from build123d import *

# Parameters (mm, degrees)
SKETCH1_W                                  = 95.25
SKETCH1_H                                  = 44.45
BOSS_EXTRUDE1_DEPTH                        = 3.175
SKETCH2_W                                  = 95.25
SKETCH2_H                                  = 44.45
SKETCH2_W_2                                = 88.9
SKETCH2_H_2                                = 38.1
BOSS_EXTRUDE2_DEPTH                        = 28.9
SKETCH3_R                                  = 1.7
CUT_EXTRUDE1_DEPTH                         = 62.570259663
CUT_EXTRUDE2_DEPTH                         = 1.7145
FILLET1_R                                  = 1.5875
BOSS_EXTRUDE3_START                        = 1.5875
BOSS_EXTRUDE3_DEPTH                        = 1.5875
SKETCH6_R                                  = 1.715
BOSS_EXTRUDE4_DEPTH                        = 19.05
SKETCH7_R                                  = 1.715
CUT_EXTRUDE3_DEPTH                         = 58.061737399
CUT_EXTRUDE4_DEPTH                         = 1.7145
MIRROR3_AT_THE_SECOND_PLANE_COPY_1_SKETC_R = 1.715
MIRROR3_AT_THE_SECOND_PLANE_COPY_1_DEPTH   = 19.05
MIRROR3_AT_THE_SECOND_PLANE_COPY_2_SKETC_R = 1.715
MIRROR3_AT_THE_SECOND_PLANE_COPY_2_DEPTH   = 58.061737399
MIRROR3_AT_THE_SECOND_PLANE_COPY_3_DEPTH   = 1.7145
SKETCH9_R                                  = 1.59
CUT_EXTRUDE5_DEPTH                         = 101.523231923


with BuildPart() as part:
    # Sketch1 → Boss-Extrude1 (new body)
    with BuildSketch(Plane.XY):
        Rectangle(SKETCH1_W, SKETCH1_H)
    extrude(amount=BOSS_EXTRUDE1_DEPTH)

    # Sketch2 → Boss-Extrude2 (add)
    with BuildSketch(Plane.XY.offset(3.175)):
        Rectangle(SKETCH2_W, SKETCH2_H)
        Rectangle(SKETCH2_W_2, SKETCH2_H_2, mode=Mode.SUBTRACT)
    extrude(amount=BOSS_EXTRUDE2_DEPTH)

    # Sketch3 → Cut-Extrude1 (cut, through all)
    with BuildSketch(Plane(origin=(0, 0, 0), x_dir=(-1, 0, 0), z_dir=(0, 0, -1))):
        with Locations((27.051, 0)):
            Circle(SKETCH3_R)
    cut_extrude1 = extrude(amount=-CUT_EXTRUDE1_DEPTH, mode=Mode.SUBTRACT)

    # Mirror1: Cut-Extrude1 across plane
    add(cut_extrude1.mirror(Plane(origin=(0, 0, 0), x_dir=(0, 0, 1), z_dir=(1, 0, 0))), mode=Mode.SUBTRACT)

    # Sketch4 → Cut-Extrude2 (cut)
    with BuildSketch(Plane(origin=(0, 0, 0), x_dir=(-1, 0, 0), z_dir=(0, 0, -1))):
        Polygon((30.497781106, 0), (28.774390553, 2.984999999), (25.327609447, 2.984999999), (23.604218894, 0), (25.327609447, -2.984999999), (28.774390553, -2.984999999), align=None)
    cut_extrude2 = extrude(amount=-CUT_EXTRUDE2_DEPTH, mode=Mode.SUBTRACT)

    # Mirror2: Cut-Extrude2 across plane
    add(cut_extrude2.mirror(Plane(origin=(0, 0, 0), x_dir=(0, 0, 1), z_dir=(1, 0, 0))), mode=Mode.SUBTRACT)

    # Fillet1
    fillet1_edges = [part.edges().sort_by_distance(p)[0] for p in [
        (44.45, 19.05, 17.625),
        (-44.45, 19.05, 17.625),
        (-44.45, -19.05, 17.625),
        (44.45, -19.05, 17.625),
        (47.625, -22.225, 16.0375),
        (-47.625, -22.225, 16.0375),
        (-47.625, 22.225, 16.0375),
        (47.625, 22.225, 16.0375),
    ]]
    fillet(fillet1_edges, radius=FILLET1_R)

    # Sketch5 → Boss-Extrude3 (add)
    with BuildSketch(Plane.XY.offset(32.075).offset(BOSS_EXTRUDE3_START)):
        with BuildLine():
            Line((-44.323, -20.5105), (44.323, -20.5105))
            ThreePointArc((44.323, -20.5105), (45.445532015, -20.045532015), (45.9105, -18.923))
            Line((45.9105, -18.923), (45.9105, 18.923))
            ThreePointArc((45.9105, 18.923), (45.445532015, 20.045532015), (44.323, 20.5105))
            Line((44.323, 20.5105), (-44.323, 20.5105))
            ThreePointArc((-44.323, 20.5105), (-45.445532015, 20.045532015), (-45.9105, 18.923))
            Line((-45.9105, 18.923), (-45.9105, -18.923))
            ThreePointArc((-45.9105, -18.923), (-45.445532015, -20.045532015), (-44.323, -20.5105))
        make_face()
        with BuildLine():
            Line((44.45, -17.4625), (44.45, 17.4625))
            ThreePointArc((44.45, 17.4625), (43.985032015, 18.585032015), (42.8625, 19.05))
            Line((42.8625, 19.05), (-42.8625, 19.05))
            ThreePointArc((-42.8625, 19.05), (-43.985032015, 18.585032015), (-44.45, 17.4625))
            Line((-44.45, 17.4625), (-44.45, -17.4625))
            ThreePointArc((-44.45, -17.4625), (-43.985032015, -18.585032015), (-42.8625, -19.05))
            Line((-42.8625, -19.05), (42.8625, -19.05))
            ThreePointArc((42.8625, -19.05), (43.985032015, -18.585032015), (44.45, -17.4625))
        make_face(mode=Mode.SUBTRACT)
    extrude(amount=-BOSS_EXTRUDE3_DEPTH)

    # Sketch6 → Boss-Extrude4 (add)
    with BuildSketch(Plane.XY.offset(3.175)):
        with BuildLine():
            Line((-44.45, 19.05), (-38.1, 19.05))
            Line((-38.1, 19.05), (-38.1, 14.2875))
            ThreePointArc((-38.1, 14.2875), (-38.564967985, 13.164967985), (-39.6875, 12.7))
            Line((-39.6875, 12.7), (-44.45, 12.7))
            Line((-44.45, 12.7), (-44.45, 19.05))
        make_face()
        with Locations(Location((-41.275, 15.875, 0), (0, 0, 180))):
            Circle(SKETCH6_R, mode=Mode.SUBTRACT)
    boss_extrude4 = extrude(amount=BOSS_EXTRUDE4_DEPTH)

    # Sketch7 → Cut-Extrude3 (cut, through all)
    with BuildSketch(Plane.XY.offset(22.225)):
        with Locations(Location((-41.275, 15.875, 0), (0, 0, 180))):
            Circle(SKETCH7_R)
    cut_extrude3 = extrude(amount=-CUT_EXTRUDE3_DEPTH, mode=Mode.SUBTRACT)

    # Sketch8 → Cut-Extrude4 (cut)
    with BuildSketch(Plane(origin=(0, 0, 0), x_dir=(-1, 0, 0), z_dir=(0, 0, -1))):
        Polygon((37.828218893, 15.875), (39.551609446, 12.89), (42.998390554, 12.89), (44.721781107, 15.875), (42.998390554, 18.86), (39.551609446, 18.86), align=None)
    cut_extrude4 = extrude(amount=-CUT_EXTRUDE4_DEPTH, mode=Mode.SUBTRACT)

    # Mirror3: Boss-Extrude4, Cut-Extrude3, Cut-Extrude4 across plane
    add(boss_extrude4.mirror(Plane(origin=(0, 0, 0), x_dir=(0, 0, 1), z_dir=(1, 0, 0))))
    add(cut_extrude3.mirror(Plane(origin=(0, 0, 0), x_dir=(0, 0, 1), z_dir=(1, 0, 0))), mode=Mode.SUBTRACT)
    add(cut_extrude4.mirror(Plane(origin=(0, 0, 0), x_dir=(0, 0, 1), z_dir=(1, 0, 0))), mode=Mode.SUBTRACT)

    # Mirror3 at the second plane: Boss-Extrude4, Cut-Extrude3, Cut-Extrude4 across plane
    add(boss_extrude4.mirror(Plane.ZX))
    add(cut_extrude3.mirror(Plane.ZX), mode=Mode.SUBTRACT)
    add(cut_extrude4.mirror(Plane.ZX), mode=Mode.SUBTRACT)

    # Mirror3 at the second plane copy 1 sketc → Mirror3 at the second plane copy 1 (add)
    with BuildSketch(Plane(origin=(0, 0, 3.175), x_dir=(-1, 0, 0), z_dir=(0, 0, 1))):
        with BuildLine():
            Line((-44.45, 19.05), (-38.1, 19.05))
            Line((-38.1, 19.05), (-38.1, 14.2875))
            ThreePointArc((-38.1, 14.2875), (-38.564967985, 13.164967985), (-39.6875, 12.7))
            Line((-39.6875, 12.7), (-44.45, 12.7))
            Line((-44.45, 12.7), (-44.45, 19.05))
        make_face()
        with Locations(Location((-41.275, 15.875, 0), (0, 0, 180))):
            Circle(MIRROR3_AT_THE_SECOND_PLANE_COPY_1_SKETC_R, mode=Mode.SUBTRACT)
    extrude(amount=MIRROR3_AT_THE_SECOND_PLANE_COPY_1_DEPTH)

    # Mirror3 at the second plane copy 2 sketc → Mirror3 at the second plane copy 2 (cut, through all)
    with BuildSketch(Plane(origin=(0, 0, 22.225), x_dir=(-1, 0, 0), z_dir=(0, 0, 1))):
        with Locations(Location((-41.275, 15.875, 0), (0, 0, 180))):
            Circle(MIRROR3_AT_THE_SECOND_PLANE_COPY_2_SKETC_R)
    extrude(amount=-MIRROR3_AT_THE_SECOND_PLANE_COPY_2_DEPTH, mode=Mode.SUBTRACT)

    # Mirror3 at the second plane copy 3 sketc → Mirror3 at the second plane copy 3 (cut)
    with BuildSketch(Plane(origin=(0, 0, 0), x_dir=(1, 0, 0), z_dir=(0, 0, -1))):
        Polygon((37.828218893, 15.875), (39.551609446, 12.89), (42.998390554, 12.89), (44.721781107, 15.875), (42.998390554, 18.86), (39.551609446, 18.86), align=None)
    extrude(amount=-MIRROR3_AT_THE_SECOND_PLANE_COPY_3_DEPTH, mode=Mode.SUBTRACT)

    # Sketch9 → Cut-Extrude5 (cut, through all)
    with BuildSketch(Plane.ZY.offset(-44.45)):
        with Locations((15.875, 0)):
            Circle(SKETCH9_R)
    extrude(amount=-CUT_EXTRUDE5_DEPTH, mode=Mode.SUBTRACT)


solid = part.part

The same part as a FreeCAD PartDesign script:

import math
import FreeCAD as App
import Part
import Sketcher

V = App.Vector
Q = App.Units.Quantity


def edges_at(feature, points):
    """Names of the edges that pass closest to the given points."""
    edges = feature.Shape.Edges
    near = lambda p: min(range(len(edges)), key=lambda i: edges[i].distToShape(Part.Vertex(*p))[0])
    return sorted({f"Edge{near(p) + 1}" for p in points})

doc = App.newDocument("Part")
body = doc.addObject("PartDesign::Body", "Body")

# Sketch on XY plane
sketch1 = body.newObject("Sketcher::SketchObject", "Sketch")
sketch1.AttachmentSupport = (doc.getObject("XY_Plane"), [""])
sketch1.MapMode = "FlatFace"
sketch1.addGeometry([
    Part.LineSegment(V(-48, 22, 0), V(-48, -22, 0)),
    Part.LineSegment(V(-48, -22, 0), V(48, -22, 0)),
    Part.LineSegment(V(48, -22, 0), V(48, 22, 0)),
    Part.LineSegment(V(48, 22, 0), V(-48, 22, 0)),
], False)
sketch1.addConstraint([
    Sketcher.Constraint("Coincident", 0, 2, 1, 1),
    Sketcher.Constraint("Coincident", 1, 2, 2, 1),
    Sketcher.Constraint("Coincident", 2, 2, 3, 1),
    Sketcher.Constraint("Coincident", 3, 2, 0, 1),
    Sketcher.Constraint("Vertical", 0),
    Sketcher.Constraint("Horizontal", 1),
    Sketcher.Constraint("Vertical", 2),
    Sketcher.Constraint("Horizontal", 3),
    Sketcher.Constraint("Symmetric", 0, 2, 2, 2, -1, 1),
    Sketcher.Constraint("DistanceX", 1, 1, 1, 2, Q("3.75 in")),
    Sketcher.Constraint("DistanceY", 0, 2, 0, 1, Q("1.75 in")),
])
pad1 = body.newObject("PartDesign::Pad", "Pad")
pad1.Profile = sketch1
pad1.Length = Q("0.125 in")

# Sketch on XY plane
sketch2 = body.newObject("Sketcher::SketchObject", "Sketch001")
sketch2.AttachmentSupport = (doc.getObject("XY_Plane"), [""])
sketch2.MapMode = "FlatFace"
sketch2.AttachmentOffset = App.Placement(V(0, 0, 0.125 * 25.4), App.Rotation())
sketch2.addGeometry([
    Part.LineSegment(V(-48, 22, 0), V(-48, -22, 0)),  # 0
    Part.LineSegment(V(-48, -22, 0), V(48, -22, 0)),  # 1
    Part.LineSegment(V(48, -22, 0), V(48, 22, 0)),  # 2
    Part.LineSegment(V(48, 22, 0), V(-48, 22, 0)),  # 3
    Part.LineSegment(V(44, -19, 0), V(-44, -19, 0)),  # 4
    Part.LineSegment(V(-44, -19, 0), V(-44, 19, 0)),  # 5
    Part.LineSegment(V(-44, 19, 0), V(44, 19, 0)),  # 6
    Part.LineSegment(V(44, 19, 0), V(44, -19, 0)),  # 7
], False)
sketch2.addConstraint([
    Sketcher.Constraint("Coincident", 0, 2, 1, 1),
    Sketcher.Constraint("Coincident", 1, 2, 2, 1),
    Sketcher.Constraint("Coincident", 2, 2, 3, 1),
    Sketcher.Constraint("Coincident", 3, 2, 0, 1),
    Sketcher.Constraint("Coincident", 4, 2, 5, 1),
    Sketcher.Constraint("Coincident", 5, 2, 6, 1),
    Sketcher.Constraint("Coincident", 6, 2, 7, 1),
    Sketcher.Constraint("Coincident", 7, 2, 4, 1),
    Sketcher.Constraint("Vertical", 0),
    Sketcher.Constraint("Horizontal", 1),
    Sketcher.Constraint("Vertical", 2),
    Sketcher.Constraint("Horizontal", 3),
    Sketcher.Constraint("Horizontal", 4),
    Sketcher.Constraint("Vertical", 5),
    Sketcher.Constraint("Horizontal", 6),
    Sketcher.Constraint("Vertical", 7),
    Sketcher.Constraint("Symmetric", 0, 2, 2, 2, -1, 1),
    Sketcher.Constraint("Symmetric", 4, 2, 6, 2, -1, 1),
    Sketcher.Constraint("DistanceX", 4, 2, 4, 1, Q("3.5 in")),
    Sketcher.Constraint("DistanceY", 5, 1, 5, 2, Q("1.5 in")),
    Sketcher.Constraint("DistanceX", 1, 1, 1, 2, Q("3.75 in")),
    Sketcher.Constraint("DistanceY", 0, 2, 0, 1, Q("1.75 in")),
])
pad2 = body.newObject("PartDesign::Pad", "Pad001")
pad2.Profile = sketch2
pad2.Length = 28.9

# Sketch on XY plane
sketch3 = body.newObject("Sketcher::SketchObject", "Sketch002")
sketch3.AttachmentSupport = (doc.getObject("XY_Plane"), [""])
sketch3.MapMode = "FlatFace"
sketch3.addGeometry(Part.Circle(V(-27.1, 0, 0), V(0, 0, 1), 1.7), False)
sketch3.addConstraint([
    Sketcher.Constraint("PointOnObject", 0, 3, -1),
    Sketcher.Constraint("Diameter", 0, Q("3.4 mm")),
    Sketcher.Constraint("DistanceX", 0, 3, -1, 1, Q("1.065 in")),
])
pocket1 = body.newObject("PartDesign::Pocket", "Pocket")
pocket1.Profile = sketch3
pocket1.Type = "ThroughAll"
pocket1.Reversed = True
doc.recompute()

mirrored = body.newObject("PartDesign::Mirrored", "Mirrored")
mirrored.Originals = [pocket1]
mirrored.MirrorPlane = (doc.getObject("YZ_Plane"), [""])
body.Tip = mirrored

# Sketch on XY plane
sketch4 = body.newObject("Sketcher::SketchObject", "Sketch003")
sketch4.AttachmentSupport = (doc.getObject("XY_Plane"), [""])
sketch4.MapMode = "FlatFace"
sketch4.addGeometry([
    Part.LineSegment(V(-30.5, 0, 0), V(-28.8, 3, 0)),  # 0
    Part.LineSegment(V(-28.8, 3, 0), V(-25.3, 3, 0)),  # 1
    Part.LineSegment(V(-25.3, 3, 0), V(-23.6, 0, 0)),  # 2
    Part.LineSegment(V(-23.6, 0, 0), V(-25.3, -3, 0)),  # 3
    Part.LineSegment(V(-25.3, -3, 0), V(-28.8, -3, 0)),  # 4
    Part.LineSegment(V(-28.8, -3, 0), V(-30.5, 0, 0)),  # 5
], False)
sketch4.addConstraint([
    Sketcher.Constraint("Coincident", 0, 2, 1, 1),
    Sketcher.Constraint("Coincident", 1, 2, 2, 1),
    Sketcher.Constraint("Coincident", 2, 2, 3, 1),
    Sketcher.Constraint("Coincident", 3, 2, 4, 1),
    Sketcher.Constraint("Coincident", 4, 2, 5, 1),
    Sketcher.Constraint("Coincident", 5, 2, 0, 1),
    Sketcher.Constraint("Horizontal", 1),
    Sketcher.Constraint("Horizontal", 4),
    Sketcher.Constraint("Symmetric", 1, 2, 3, 2, -1),
    Sketcher.Constraint("PointOnObject", 2, 2, -1),
    Sketcher.Constraint("PointOnObject", 5, 2, -1),
    Sketcher.Constraint("Parallel", 0, 3),
    Sketcher.Constraint("Parallel", 2, 5),
    Sketcher.Constraint("Angle", 0, Q("60 deg")),
    Sketcher.Constraint("DistanceX", 1, 1, 1, 2, Q("0.1357 in")),
    Sketcher.Constraint("Distance", 0, Q("0.1357 in")),
    Sketcher.Constraint("DistanceX", 2, 2, -1, 1, Q("0.9293 in")),
])
pocket2 = body.newObject("PartDesign::Pocket", "Pocket001")
pocket2.Profile = sketch4
pocket2.Length = Q("0.0675 in")
pocket2.Reversed = True
doc.recompute()

mirrored2 = body.newObject("PartDesign::Mirrored", "Mirrored001")
mirrored2.Originals = [pocket2]
mirrored2.MirrorPlane = (doc.getObject("YZ_Plane"), [""])
body.Tip = mirrored2
doc.recompute()

fillet = body.newObject("PartDesign::Fillet", "Fillet")
fillet.Base = (mirrored2, edges_at(mirrored2, [
    (44.45, 19.05, 17.625),
    (-44.45, 19.05, 17.625),
    (-44.45, -19.05, 17.625),
    (44.45, -19.05, 17.625),
    (47.625, -22.225, 16.038),
    (-47.625, -22.225, 16.038),
    (-47.625, 22.225, 16.038),
    (47.625, 22.225, 16.038),
]))
fillet.Radius = Q("0.0625 in")

# Sketch on XY plane
sketch5 = body.newObject("Sketcher::SketchObject", "Sketch004")
sketch5.AttachmentSupport = (doc.getObject("XY_Plane"), [""])
sketch5.MapMode = "FlatFace"
sketch5.AttachmentOffset = App.Placement(V(0, 0, 33.6625), App.Rotation())
sketch5.addGeometry([
    Part.LineSegment(V(-44.3, -20.5, 0), V(44.3, -20.5, 0)),  # 0
    Part.ArcOfCircle(Part.Circle(V(44.3, -18.9, 0), V(0, 0, 1), 1.6), math.radians(-90), math.radians(0)),  # 1
    Part.LineSegment(V(45.9, -18.9, 0), V(45.9, 18.9, 0)),  # 2
    Part.ArcOfCircle(Part.Circle(V(44.3, 18.9, 0), V(0, 0, 1), 1.6), math.radians(0), math.radians(90)),  # 3
    Part.LineSegment(V(44.3, 20.5, 0), V(-44.3, 20.5, 0)),  # 4
    Part.ArcOfCircle(Part.Circle(V(-44.3, 18.9, 0), V(0, 0, 1), 1.6), math.radians(90), math.radians(180)),  # 5
    Part.LineSegment(V(-45.9, 18.9, 0), V(-45.9, -18.9, 0)),  # 6
    Part.ArcOfCircle(Part.Circle(V(-44.3, -18.9, 0), V(0, 0, 1), 1.6), math.radians(180), math.radians(270)),  # 7
    Part.LineSegment(V(44.5, 17.5, 0), V(44.5, -17.5, 0)),  # 8
    Part.ArcOfCircle(Part.Circle(V(42.9, -17.5, 0), V(0, 0, 1), 1.6), math.radians(-90), math.radians(0)),  # 9
    Part.LineSegment(V(42.9, -19.1, 0), V(-42.9, -19.1, 0)),  # 10
    Part.ArcOfCircle(Part.Circle(V(-42.9, -17.5, 0), V(0, 0, 1), 1.6), math.radians(180), math.radians(270)),  # 11
    Part.LineSegment(V(-44.5, -17.5, 0), V(-44.5, 17.5, 0)),  # 12
    Part.ArcOfCircle(Part.Circle(V(-42.9, 17.5, 0), V(0, 0, 1), 1.6), math.radians(90), math.radians(180)),  # 13
    Part.LineSegment(V(-42.9, 19.1, 0), V(42.9, 19.1, 0)),  # 14
    Part.ArcOfCircle(Part.Circle(V(42.9, 17.5, 0), V(0, 0, 1), 1.6), math.radians(0), math.radians(90)),  # 15
], False)
sketch5.addConstraint([
    Sketcher.Constraint("Tangent", 0, 2, 1, 1),
    Sketcher.Constraint("Tangent", 1, 2, 2, 1),
    Sketcher.Constraint("Tangent", 2, 2, 3, 1),
    Sketcher.Constraint("Tangent", 3, 2, 4, 1),
    Sketcher.Constraint("Tangent", 4, 2, 5, 1),
    Sketcher.Constraint("Tangent", 5, 2, 6, 1),
    Sketcher.Constraint("Tangent", 6, 2, 7, 1),
    Sketcher.Constraint("Tangent", 7, 2, 0, 1),
    Sketcher.Constraint("Tangent", 8, 2, 9, 2),
    Sketcher.Constraint("Tangent", 9, 1, 10, 1),
    Sketcher.Constraint("Tangent", 10, 2, 11, 2),
    Sketcher.Constraint("Tangent", 11, 1, 12, 1),
    Sketcher.Constraint("Tangent", 12, 2, 13, 2),
    Sketcher.Constraint("Tangent", 13, 1, 14, 1),
    Sketcher.Constraint("Tangent", 14, 2, 15, 2),
    Sketcher.Constraint("Tangent", 15, 1, 8, 1),
    Sketcher.Constraint("Horizontal", 0),
    Sketcher.Constraint("Vertical", 2),
    Sketcher.Constraint("Horizontal", 4),
    Sketcher.Constraint("Vertical", 6),
    Sketcher.Constraint("Vertical", 8),
    Sketcher.Constraint("Horizontal", 10),
    Sketcher.Constraint("Vertical", 12),
    Sketcher.Constraint("Horizontal", 14),
    Sketcher.Constraint("Equal", 1, 3),
    Sketcher.Constraint("Equal", 3, 5),
    Sketcher.Constraint("Equal", 5, 7),
    Sketcher.Constraint("Equal", 7, 9),
    Sketcher.Constraint("Equal", 9, 11),
    Sketcher.Constraint("Equal", 11, 13),
    Sketcher.Constraint("Equal", 13, 15),
    Sketcher.Constraint("Symmetric", 1, 3, 5, 3, -1, 1),
    Sketcher.Constraint("Symmetric", 9, 3, 13, 3, -1, 1),
    Sketcher.Constraint("Radius", 1, Q("0.0625 in")),
    Sketcher.Constraint("DistanceX", 0, 1, 0, 2, Q("3.49 in")),
    Sketcher.Constraint("DistanceY", 2, 1, 2, 2, Q("1.49 in")),
    Sketcher.Constraint("DistanceX", 10, 2, 10, 1, Q("3.375 in")),
    Sketcher.Constraint("DistanceY", 8, 2, 8, 1, Q("1.375 in")),
])
pad3 = body.newObject("PartDesign::Pad", "Pad002")
pad3.Profile = sketch5
pad3.Length = Q("0.0625 in")
pad3.Reversed = True

# Sketch on XY plane
sketch6 = body.newObject("Sketcher::SketchObject", "Sketch005")
sketch6.AttachmentSupport = (doc.getObject("XY_Plane"), [""])
sketch6.MapMode = "FlatFace"
sketch6.AttachmentOffset = App.Placement(V(0, 0, 0.125 * 25.4), App.Rotation())
sketch6.addGeometry([
    Part.LineSegment(V(-38.1, 19.1, 0), V(-44.5, 19.1, 0)),  # 0
    Part.LineSegment(V(-44.5, 19.1, 0), V(-44.5, 12.7, 0)),  # 1
    Part.LineSegment(V(-44.5, 12.7, 0), V(-39.7, 12.7, 0)),  # 2
    Part.ArcOfCircle(Part.Circle(V(-39.7, 14.3, 0), V(0, 0, 1), 1.6), math.radians(-90), math.radians(0)),  # 3
    Part.LineSegment(V(-38.1, 14.3, 0), V(-38.1, 19.1, 0)),  # 4
    Part.Circle(V(-41.3, 15.9, 0), V(0, 0, 1), 1.7),  # 5
], False)
sketch6.addConstraint([
    Sketcher.Constraint("Coincident", 0, 2, 1, 1),
    Sketcher.Constraint("Coincident", 1, 2, 2, 1),
    Sketcher.Constraint("Tangent", 2, 2, 3, 1),
    Sketcher.Constraint("Tangent", 3, 2, 4, 1),
    Sketcher.Constraint("Coincident", 4, 2, 0, 1),
    Sketcher.Constraint("Horizontal", 0),
    Sketcher.Constraint("Vertical", 1),
    Sketcher.Constraint("Horizontal", 2),
    Sketcher.Constraint("Vertical", 4),
    Sketcher.Constraint("Equal", 0, 1),
    Sketcher.Constraint("Radius", 3, Q("0.0625 in")),
    Sketcher.Constraint("DistanceX", 0, 2, 0, 1, Q("0.25 in")),
    Sketcher.Constraint("DistanceY", -1, 1, 1, 2, Q("0.5 in")),
    Sketcher.Constraint("DistanceX", 3, 2, -1, 1, Q("1.5 in")),
    Sketcher.Constraint("Diameter", 5, Q("3.43 mm")),
    Sketcher.Constraint("DistanceX", 5, 3, -1, 1, Q("1.625 in")),
    Sketcher.Constraint("DistanceY", -1, 1, 5, 3, Q("0.625 in")),
])
pad4 = body.newObject("PartDesign::Pad", "Pad003")
pad4.Profile = sketch6
pad4.Length = Q("0.75 in")

# Sketch on XY plane
sketch7 = body.newObject("Sketcher::SketchObject", "Sketch006")
sketch7.AttachmentSupport = (doc.getObject("XY_Plane"), [""])
sketch7.MapMode = "FlatFace"
sketch7.AttachmentOffset = App.Placement(V(0, 0, 0.875 * 25.4), App.Rotation())
sketch7.addGeometry(Part.Circle(V(-41.3, 15.9, 0), V(0, 0, 1), 1.7), False)
sketch7.addConstraint([
    Sketcher.Constraint("Diameter", 0, Q("3.43 mm")),
    Sketcher.Constraint("DistanceX", 0, 3, -1, 1, Q("1.625 in")),
    Sketcher.Constraint("DistanceY", -1, 1, 0, 3, Q("0.625 in")),
])
pocket3 = body.newObject("PartDesign::Pocket", "Pocket002")
pocket3.Profile = sketch7
pocket3.Type = "ThroughAll"

# Sketch on XY plane
sketch8 = body.newObject("Sketcher::SketchObject", "Sketch007")
sketch8.AttachmentSupport = (doc.getObject("XY_Plane"), [""])
sketch8.MapMode = "FlatFace"
sketch8.addGeometry([
    Part.LineSegment(V(-37.8, 15.9, 0), V(-39.6, 12.9, 0)),  # 0
    Part.LineSegment(V(-39.6, 12.9, 0), V(-43, 12.9, 0)),  # 1
    Part.LineSegment(V(-43, 12.9, 0), V(-44.7, 15.9, 0)),  # 2
    Part.LineSegment(V(-44.7, 15.9, 0), V(-43, 18.9, 0)),  # 3
    Part.LineSegment(V(-43, 18.9, 0), V(-39.6, 18.9, 0)),  # 4
    Part.LineSegment(V(-39.6, 18.9, 0), V(-37.8, 15.9, 0)),  # 5
], False)
sketch8.addConstraint([
    Sketcher.Constraint("Coincident", 0, 2, 1, 1),
    Sketcher.Constraint("Coincident", 1, 2, 2, 1),
    Sketcher.Constraint("Coincident", 2, 2, 3, 1),
    Sketcher.Constraint("Coincident", 3, 2, 4, 1),
    Sketcher.Constraint("Coincident", 4, 2, 5, 1),
    Sketcher.Constraint("Coincident", 5, 2, 0, 1),
    Sketcher.Constraint("Horizontal", 1),
    Sketcher.Constraint("Horizontal", 4),
    Sketcher.Constraint("Parallel", 0, 3),
    Sketcher.Constraint("Parallel", 2, 5),
    Sketcher.Constraint("Horizontal", 2, 2, 5, 2),
    Sketcher.Constraint("Vertical", 1, 2, 3, 2),
    Sketcher.Constraint("Vertical", 0, 2, 4, 2),
    Sketcher.Constraint("Angle", 0, Q("-120 deg")),
    Sketcher.Constraint("DistanceX", 1, 2, 1, 1, Q("0.1357 in")),
    Sketcher.Constraint("DistanceY", -1, 1, 2, 2, Q("0.625 in")),
    Sketcher.Constraint("Distance", 0, Q("0.1357 in")),
    Sketcher.Constraint("DistanceX", 2, 2, -1, 1, Q("1.7607 in")),
])
pocket4 = body.newObject("PartDesign::Pocket", "Pocket003")
pocket4.Profile = sketch8
pocket4.Length = Q("0.0675 in")
pocket4.Reversed = True
doc.recompute()

mirrored3 = body.newObject("PartDesign::Mirrored", "Mirrored002")
mirrored3.Originals = [pad4, pocket3, pocket4]
mirrored3.MirrorPlane = (doc.getObject("YZ_Plane"), [""])
body.Tip = mirrored3
doc.recompute()

mirrored4 = body.newObject("PartDesign::Mirrored", "Mirrored003")
mirrored4.Originals = [pad4, pocket3, pocket4]
mirrored4.MirrorPlane = (doc.getObject("XZ_Plane"), [""])
body.Tip = mirrored4

# Sketch on XY plane
sketch9 = body.newObject("Sketcher::SketchObject", "Sketch008")
sketch9.AttachmentSupport = (doc.getObject("XY_Plane"), [""])
sketch9.MapMode = "FlatFace"
sketch9.AttachmentOffset = App.Placement(V(0, 0, 0.125 * 25.4), App.Rotation())
sketch9.addGeometry([
    Part.LineSegment(V(38.1, -19.1, 0), V(44.5, -19.1, 0)),  # 0
    Part.LineSegment(V(44.5, -19.1, 0), V(44.5, -12.7, 0)),  # 1
    Part.LineSegment(V(44.5, -12.7, 0), V(39.7, -12.7, 0)),  # 2
    Part.ArcOfCircle(Part.Circle(V(39.7, -14.3, 0), V(0, 0, 1), 1.6), math.radians(90), math.radians(180)),  # 3
    Part.LineSegment(V(38.1, -14.3, 0), V(38.1, -19.1, 0)),  # 4
    Part.Circle(V(41.3, -15.9, 0), V(0, 0, 1), 1.7),  # 5
], False)
sketch9.addConstraint([
    Sketcher.Constraint("Coincident", 0, 2, 1, 1),
    Sketcher.Constraint("Coincident", 1, 2, 2, 1),
    Sketcher.Constraint("Tangent", 2, 2, 3, 1),
    Sketcher.Constraint("Tangent", 3, 2, 4, 1),
    Sketcher.Constraint("Coincident", 4, 2, 0, 1),
    Sketcher.Constraint("Horizontal", 0),
    Sketcher.Constraint("Vertical", 1),
    Sketcher.Constraint("Horizontal", 2),
    Sketcher.Constraint("Vertical", 4),
    Sketcher.Constraint("Equal", 0, 1),
    Sketcher.Constraint("Radius", 3, Q("0.0625 in")),
    Sketcher.Constraint("DistanceX", 0, 1, 0, 2, Q("0.25 in")),
    Sketcher.Constraint("DistanceY", 1, 2, -1, 1, Q("0.5 in")),
    Sketcher.Constraint("DistanceX", -1, 1, 3, 2, Q("1.5 in")),
    Sketcher.Constraint("Diameter", 5, Q("3.43 mm")),
    Sketcher.Constraint("DistanceX", -1, 1, 5, 3, Q("1.625 in")),
    Sketcher.Constraint("DistanceY", 5, 3, -1, 1, Q("0.625 in")),
])
pad5 = body.newObject("PartDesign::Pad", "Pad004")
pad5.Profile = sketch9
pad5.Length = Q("0.75 in")

# Sketch on XY plane
sketch10 = body.newObject("Sketcher::SketchObject", "Sketch009")
sketch10.AttachmentSupport = (doc.getObject("XY_Plane"), [""])
sketch10.MapMode = "FlatFace"
sketch10.AttachmentOffset = App.Placement(V(0, 0, 0.875 * 25.4), App.Rotation())
sketch10.addGeometry(Part.Circle(V(41.3, -15.9, 0), V(0, 0, 1), 1.7), False)
sketch10.addConstraint([
    Sketcher.Constraint("Diameter", 0, Q("3.43 mm")),
    Sketcher.Constraint("DistanceX", -1, 1, 0, 3, Q("1.625 in")),
    Sketcher.Constraint("DistanceY", 0, 3, -1, 1, Q("0.625 in")),
])
pocket5 = body.newObject("PartDesign::Pocket", "Pocket004")
pocket5.Profile = sketch10
pocket5.Type = "ThroughAll"

# Sketch on XY plane
sketch11 = body.newObject("Sketcher::SketchObject", "Sketch010")
sketch11.AttachmentSupport = (doc.getObject("XY_Plane"), [""])
sketch11.MapMode = "FlatFace"
sketch11.addGeometry([
    Part.LineSegment(V(37.8, -15.9, 0), V(39.6, -12.9, 0)),  # 0
    Part.LineSegment(V(39.6, -12.9, 0), V(43, -12.9, 0)),  # 1
    Part.LineSegment(V(43, -12.9, 0), V(44.7, -15.9, 0)),  # 2
    Part.LineSegment(V(44.7, -15.9, 0), V(43, -18.9, 0)),  # 3
    Part.LineSegment(V(43, -18.9, 0), V(39.6, -18.9, 0)),  # 4
    Part.LineSegment(V(39.6, -18.9, 0), V(37.8, -15.9, 0)),  # 5
], False)
sketch11.addConstraint([
    Sketcher.Constraint("Coincident", 0, 2, 1, 1),
    Sketcher.Constraint("Coincident", 1, 2, 2, 1),
    Sketcher.Constraint("Coincident", 2, 2, 3, 1),
    Sketcher.Constraint("Coincident", 3, 2, 4, 1),
    Sketcher.Constraint("Coincident", 4, 2, 5, 1),
    Sketcher.Constraint("Coincident", 5, 2, 0, 1),
    Sketcher.Constraint("Horizontal", 1),
    Sketcher.Constraint("Horizontal", 4),
    Sketcher.Constraint("Parallel", 0, 3),
    Sketcher.Constraint("Parallel", 2, 5),
    Sketcher.Constraint("Horizontal", 2, 2, 5, 2),
    Sketcher.Constraint("Vertical", 1, 2, 3, 2),
    Sketcher.Constraint("Vertical", 0, 2, 4, 2),
    Sketcher.Constraint("Angle", 0, Q("60 deg")),
    Sketcher.Constraint("DistanceX", 1, 1, 1, 2, Q("0.1357 in")),
    Sketcher.Constraint("DistanceY", 2, 2, -1, 1, Q("0.625 in")),
    Sketcher.Constraint("Distance", 0, Q("0.1357 in")),
    Sketcher.Constraint("DistanceX", -1, 1, 2, 2, Q("1.7607 in")),
])
pocket6 = body.newObject("PartDesign::Pocket", "Pocket005")
pocket6.Profile = sketch11
pocket6.Length = Q("0.0675 in")
pocket6.Reversed = True

# Sketch on YZ plane
sketch12 = body.newObject("Sketcher::SketchObject", "Sketch011")
sketch12.AttachmentSupport = (doc.getObject("YZ_Plane"), [""])
sketch12.MapMode = "FlatFace"
sketch12.AttachmentOffset = App.Placement(V(0, 0, 1.75 * 25.4), App.Rotation())
sketch12.addGeometry(Part.Circle(V(0, 15.9, 0), V(0, 0, 1), 1.6), False)
sketch12.addConstraint([
    Sketcher.Constraint("PointOnObject", 0, 3, -2),
    Sketcher.Constraint("Diameter", 0, Q("3.18 mm")),
    Sketcher.Constraint("DistanceY", -1, 1, 0, 3, Q("0.625 in")),
])
pocket7 = body.newObject("PartDesign::Pocket", "Pocket006")
pocket7.Profile = sketch12
pocket7.Type = "ThroughAll"
pocket7.Reversed = True

doc.recompute()
